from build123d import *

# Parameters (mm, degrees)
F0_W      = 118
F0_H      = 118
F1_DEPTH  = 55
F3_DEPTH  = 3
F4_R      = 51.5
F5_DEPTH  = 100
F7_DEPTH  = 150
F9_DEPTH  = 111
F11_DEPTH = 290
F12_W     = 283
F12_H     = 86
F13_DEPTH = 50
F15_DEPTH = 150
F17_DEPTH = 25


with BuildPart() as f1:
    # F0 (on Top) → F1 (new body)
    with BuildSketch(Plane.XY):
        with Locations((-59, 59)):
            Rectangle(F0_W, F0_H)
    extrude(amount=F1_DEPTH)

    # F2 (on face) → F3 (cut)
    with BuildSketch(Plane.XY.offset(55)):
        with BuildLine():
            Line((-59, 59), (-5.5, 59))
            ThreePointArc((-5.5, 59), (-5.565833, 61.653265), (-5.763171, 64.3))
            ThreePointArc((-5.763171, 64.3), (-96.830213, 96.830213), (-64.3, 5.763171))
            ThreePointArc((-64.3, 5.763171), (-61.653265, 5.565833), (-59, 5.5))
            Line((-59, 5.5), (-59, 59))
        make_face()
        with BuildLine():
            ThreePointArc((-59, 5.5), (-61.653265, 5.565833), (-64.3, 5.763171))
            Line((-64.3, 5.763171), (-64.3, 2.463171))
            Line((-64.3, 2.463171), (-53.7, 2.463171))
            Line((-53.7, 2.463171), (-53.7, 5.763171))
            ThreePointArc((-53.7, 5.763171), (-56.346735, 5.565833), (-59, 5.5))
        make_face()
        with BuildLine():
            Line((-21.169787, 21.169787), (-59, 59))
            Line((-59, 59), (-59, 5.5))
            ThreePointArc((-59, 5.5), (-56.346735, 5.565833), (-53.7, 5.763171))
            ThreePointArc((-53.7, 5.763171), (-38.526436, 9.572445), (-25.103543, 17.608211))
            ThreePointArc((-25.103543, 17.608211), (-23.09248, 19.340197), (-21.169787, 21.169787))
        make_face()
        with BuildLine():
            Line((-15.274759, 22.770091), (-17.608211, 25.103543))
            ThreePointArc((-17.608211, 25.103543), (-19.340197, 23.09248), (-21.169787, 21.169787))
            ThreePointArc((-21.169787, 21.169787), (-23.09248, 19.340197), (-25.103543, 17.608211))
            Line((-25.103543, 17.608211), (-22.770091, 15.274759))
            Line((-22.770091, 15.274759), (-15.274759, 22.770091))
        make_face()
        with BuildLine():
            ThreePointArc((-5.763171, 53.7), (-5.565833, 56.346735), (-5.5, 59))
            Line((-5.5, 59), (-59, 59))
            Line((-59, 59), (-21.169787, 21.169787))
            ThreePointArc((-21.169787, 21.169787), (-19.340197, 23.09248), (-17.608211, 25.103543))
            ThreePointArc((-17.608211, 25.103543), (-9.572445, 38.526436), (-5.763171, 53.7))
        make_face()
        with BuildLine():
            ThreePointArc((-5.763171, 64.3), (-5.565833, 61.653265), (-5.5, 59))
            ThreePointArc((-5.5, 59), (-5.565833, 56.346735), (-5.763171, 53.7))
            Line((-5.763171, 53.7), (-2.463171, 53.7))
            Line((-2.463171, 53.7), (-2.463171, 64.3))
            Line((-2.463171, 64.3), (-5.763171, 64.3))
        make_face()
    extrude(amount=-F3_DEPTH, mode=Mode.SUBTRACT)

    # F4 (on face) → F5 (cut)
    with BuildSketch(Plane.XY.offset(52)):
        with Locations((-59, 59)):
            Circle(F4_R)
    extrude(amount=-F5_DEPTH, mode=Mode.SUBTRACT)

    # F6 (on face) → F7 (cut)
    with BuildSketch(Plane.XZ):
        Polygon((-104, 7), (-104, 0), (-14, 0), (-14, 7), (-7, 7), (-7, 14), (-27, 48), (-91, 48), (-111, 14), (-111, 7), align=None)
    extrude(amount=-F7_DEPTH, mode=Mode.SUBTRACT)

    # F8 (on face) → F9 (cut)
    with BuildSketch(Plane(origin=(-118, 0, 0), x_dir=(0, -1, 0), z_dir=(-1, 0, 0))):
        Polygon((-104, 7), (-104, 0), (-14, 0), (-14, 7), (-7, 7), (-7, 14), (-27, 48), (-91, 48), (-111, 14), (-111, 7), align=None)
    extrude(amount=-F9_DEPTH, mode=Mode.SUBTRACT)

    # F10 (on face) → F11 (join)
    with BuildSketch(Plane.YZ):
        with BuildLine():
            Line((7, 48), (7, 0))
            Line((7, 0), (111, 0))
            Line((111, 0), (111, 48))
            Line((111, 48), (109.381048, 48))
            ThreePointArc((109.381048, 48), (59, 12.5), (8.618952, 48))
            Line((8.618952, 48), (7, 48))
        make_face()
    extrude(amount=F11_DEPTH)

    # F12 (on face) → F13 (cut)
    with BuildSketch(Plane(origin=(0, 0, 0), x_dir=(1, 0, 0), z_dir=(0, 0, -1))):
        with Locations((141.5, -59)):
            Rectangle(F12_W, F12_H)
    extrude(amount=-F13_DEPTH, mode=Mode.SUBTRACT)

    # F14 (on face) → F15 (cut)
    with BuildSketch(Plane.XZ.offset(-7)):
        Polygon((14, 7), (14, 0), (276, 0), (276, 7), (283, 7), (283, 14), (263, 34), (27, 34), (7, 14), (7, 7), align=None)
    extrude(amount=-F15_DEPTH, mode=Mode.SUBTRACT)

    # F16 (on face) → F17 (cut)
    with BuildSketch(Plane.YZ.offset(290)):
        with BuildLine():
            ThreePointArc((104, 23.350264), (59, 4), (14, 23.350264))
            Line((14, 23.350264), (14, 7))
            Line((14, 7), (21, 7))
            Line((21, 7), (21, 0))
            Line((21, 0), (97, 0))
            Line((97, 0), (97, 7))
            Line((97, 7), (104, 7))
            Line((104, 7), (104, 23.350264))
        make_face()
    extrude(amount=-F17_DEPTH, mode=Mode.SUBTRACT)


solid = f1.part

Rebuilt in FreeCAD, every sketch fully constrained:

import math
import FreeCAD as App
import Part
import Sketcher
Q = App.Units.Quantity

doc = App.newDocument("Part")
body = doc.addObject("PartDesign::Body", "Body")

sketch1 = body.newObject("Sketcher::SketchObject", "Sketch")
sketch1.AttachmentSupport = (doc.getObject("XY_Plane"), [""])
sketch1.MapMode = "FlatFace"
sketch1.addGeometry([
    Part.LineSegment(App.Vector(-118, 118, 0), App.Vector(-118, 0, 0)),
    Part.LineSegment(App.Vector(-118, 0, 0), App.Vector(0, 0, 0)),
    Part.LineSegment(App.Vector(0, 0, 0), App.Vector(0, 118, 0)),
    Part.LineSegment(App.Vector(0, 118, 0), App.Vector(-118, 118, 0)),
], False)
sketch1.addConstraint([
    Sketcher.Constraint("Coincident", 0, 2, 1, 1),
    Sketcher.Constraint("Coincident", 1, 2, 2, 1),
    Sketcher.Constraint("Coincident", 2, 2, 3, 1),
    Sketcher.Constraint("Coincident", 3, 2, 0, 1),
    Sketcher.Constraint("Vertical", 0),
    Sketcher.Constraint("Horizontal", 1),
    Sketcher.Constraint("Vertical", 2),
    Sketcher.Constraint("Horizontal", 3),
    Sketcher.Constraint("Coincident", 1, 2, -1, 1),
    Sketcher.Constraint("Equal", 3, 0),
    Sketcher.Constraint("DistanceX", 1, 1, 1, 2, Q("118 mm")),
])
pad1 = body.newObject("PartDesign::Pad", "Pad")
pad1.Profile = sketch1
pad1.Length = 55

sketch2 = body.newObject("Sketcher::SketchObject", "Sketch001")
sketch2.AttachmentSupport = (doc.getObject("XY_Plane"), [""])
sketch2.MapMode = "FlatFace"
sketch2.AttachmentOffset = App.Placement(App.Vector(0, 0, 55), App.Rotation())
sketch2.addGeometry([
    Part.ArcOfCircle(Part.Circle(App.Vector(-59, 59, 0), App.Vector(0, 0, 1), 53.5), math.radians(5.685355), math.radians(264.314645)),
    Part.LineSegment(App.Vector(-64.3, 5.763171, 0), App.Vector(-64.3, 2.463171, 0)),
    Part.LineSegment(App.Vector(-64.3, 2.463171, 0), App.Vector(-53.7, 2.463171, 0)),
    Part.LineSegment(App.Vector(-53.7, 2.463171, 0), App.Vector(-53.7, 5.763171, 0)),
    Part.ArcOfCircle(Part.Circle(App.Vector(-58.999996, 58.999992, 0), App.Vector(0, 0, 1), 53.499992), math.radians(-84.314647), math.radians(-50.685354)),
    Part.LineSegment(App.Vector(-25.103543, 17.608211, 0), App.Vector(-22.770091, 15.274759, 0)),
    Part.LineSegment(App.Vector(-22.770091, 15.274759, 0), App.Vector(-15.274759, 22.770091, 0)),
    Part.LineSegment(App.Vector(-15.274759, 22.770091, 0), App.Vector(-17.608211, 25.103543, 0)),
    Part.ArcOfCircle(Part.Circle(App.Vector(-58.999992, 58.999996, 0), App.Vector(0, 0, 1), 53.499992), math.radians(-39.314646), math.radians(-5.685353)),
    Part.LineSegment(App.Vector(-5.763171, 53.7, 0), App.Vector(-2.463171, 53.7, 0)),
    Part.LineSegment(App.Vector(-2.463171, 53.7, 0), App.Vector(-2.463171, 64.3, 0)),
    Part.LineSegment(App.Vector(-2.463171, 64.3, 0), App.Vector(-5.763171, 64.3, 0)),
], False)
sketch2.addConstraint([
    Sketcher.Constraint("Coincident", 0, 2, 1, 1),
    Sketcher.Constraint("Coincident", 1, 2, 2, 1),
    Sketcher.Constraint("Coincident", 2, 2, 3, 1),
    Sketcher.Constraint("Coincident", 3, 2, 4, 1),
    Sketcher.Constraint("Coincident", 4, 2, 5, 1),
    Sketcher.Constraint("Coincident", 5, 2, 6, 1),
    Sketcher.Constraint("Coincident", 6, 2, 7, 1),
    Sketcher.Constraint("Coincident", 7, 2, 8, 1),
    Sketcher.Constraint("Coincident", 8, 2, 9, 1),
    Sketcher.Constraint("Coincident", 9, 2, 10, 1),
    Sketcher.Constraint("Coincident", 10, 2, 11, 1),
    Sketcher.Constraint("Coincident", 11, 2, 0, 1),
    Sketcher.Constraint("Vertical", 1),
    Sketcher.Constraint("Horizontal", 2),
    Sketcher.Constraint("Vertical", 3),
    Sketcher.Constraint("Horizontal", 9),
    Sketcher.Constraint("Vertical", 10),
    Sketcher.Constraint("Horizontal", 11),
    Sketcher.Constraint("Coincident", 4, 3, 0, 3),
    Sketcher.Constraint("Coincident", 8, 3, 0, 3),
    Sketcher.Constraint("Equal", 4, 8),
    Sketcher.Constraint("Perpendicular", 5, 6),
    Sketcher.Constraint("Perpendicular", 6, 7),
    Sketcher.Constraint("Horizontal", 0, 2, 3, 2),
    Sketcher.Constraint("Vertical", 8, 2, 11, 2),
    Sketcher.Constraint("Equal", 11, 1),
    Sketcher.Constraint("Equal", 2, 10),
    Sketcher.Constraint("Equal", 5, 7),
    Sketcher.Constraint("Radius", 0, Q("53.5 mm")),
    Sketcher.Constraint("Angle", 5, Q("-45 deg")),
    Sketcher.Constraint("DistanceX", 2, 1, 2, 2, Q("10.6 mm")),
    Sketcher.Constraint("DistanceX", 9, 1, 9, 2, Q("3.3 mm")),
    Sketcher.Constraint("DistanceX", 0, 3, -1, 1, Q("59 mm")),
    Sketcher.Constraint("DistanceY", -1, 1, 0, 3, Q("59 mm")),
    Sketcher.Constraint("Distance", 5, Q("3.299999 mm")),
    Sketcher.Constraint("Distance", 6, Q("10.6 mm")),
    Sketcher.Constraint("DistanceX", 0, 2, -1, 1, Q("64.3 mm")),
])
pocket1 = body.newObject("PartDesign::Pocket", "Pocket")
pocket1.Profile = sketch2
pocket1.Length = 3

sketch3 = body.newObject("Sketcher::SketchObject", "Sketch002")
sketch3.AttachmentSupport = (doc.getObject("XY_Plane"), [""])
sketch3.MapMode = "FlatFace"
sketch3.AttachmentOffset = App.Placement(App.Vector(0, 0, 52), App.Rotation())
sketch3.addGeometry(Part.Circle(App.Vector(-59, 59, 0), App.Vector(0, 0, 1), 51.5), False)
sketch3.addConstraint([
    Sketcher.Constraint("Diameter", 0, Q("103 mm")),
    Sketcher.Constraint("DistanceX", 0, 3, -1, 1, Q("59 mm")),
    Sketcher.Constraint("DistanceY", -1, 1, 0, 3, Q("59 mm")),
])
pocket2 = body.newObject("PartDesign::Pocket", "Pocket001")
pocket2.Profile = sketch3
pocket2.Length = 100

sketch4 = body.newObject("Sketcher::SketchObject", "Sketch003")
sketch4.AttachmentSupport = (doc.getObject("XZ_Plane"), [""])
sketch4.MapMode = "FlatFace"
sketch4.addGeometry([
    Part.LineSegment(App.Vector(-104, 7, 0), App.Vector(-104, 0, 0)),
    Part.LineSegment(App.Vector(-104, 0, 0), App.Vector(-14, 0, 0)),
    Part.LineSegment(App.Vector(-14, 0, 0), App.Vector(-14, 7, 0)),
    Part.LineSegment(App.Vector(-14, 7, 0), App.Vector(-7, 7, 0)),
    Part.LineSegment(App.Vector(-7, 7, 0), App.Vector(-7, 14, 0)),
    Part.LineSegment(App.Vector(-7, 14, 0), App.Vector(-27, 48, 0)),
    Part.LineSegment(App.Vector(-27, 48, 0), App.Vector(-91, 48, 0)),
    Part.LineSegment(App.Vector(-91, 48, 0), App.Vector(-111, 14, 0)),
    Part.LineSegment(App.Vector(-111, 14, 0), App.Vector(-111, 7, 0)),
    Part.LineSegment(App.Vector(-111, 7, 0), App.Vector(-104, 7, 0)),
], False)
sketch4.addConstraint([
    Sketcher.Constraint("Coincident", 0, 2, 1, 1),
    Sketcher.Constraint("Coincident", 1, 2, 2, 1),
    Sketcher.Constraint("Coincident", 2, 2, 3, 1),
    Sketcher.Constraint("Coincident", 3, 2, 4, 1),
    Sketcher.Constraint("Coincident", 4, 2, 5, 1),
    Sketcher.Constraint("Coincident", 5, 2, 6, 1),
    Sketcher.Constraint("Coincident", 6, 2, 7, 1),
    Sketcher.Constraint("Coincident", 7, 2, 8, 1),
    Sketcher.Constraint("Coincident", 8, 2, 9, 1),
    Sketcher.Constraint("Coincident", 9, 2, 0, 1),
    Sketcher.Constraint("Vertical", 0),
    Sketcher.Constraint("Horizontal", 1),
    Sketcher.Constraint("Vertical", 2),
    Sketcher.Constraint("Horizontal", 3),
    Sketcher.Constraint("Vertical", 4),
    Sketcher.Constraint("Horizontal", 6),
    Sketcher.Constraint("Vertical", 8),
    Sketcher.Constraint("Horizontal", 9),
    Sketcher.Constraint("PointOnObject", 0, 2, -1),
    Sketcher.Constraint("Horizontal", 4, 2, 7, 2),
    Sketcher.Constraint("Horizontal", 3, 2, 8, 2),
    Sketcher.Constraint("Equal", 3, 9),
    Sketcher.Constraint("Equal", 9, 0),
    Sketcher.Constraint("Equal", 2, 4),
    Sketcher.Constraint("Equal", 5, 7),
    Sketcher.Constraint("DistanceX", 1, 1, 1, 2, Q("90 mm")),
    Sketcher.Constraint("DistanceX", 3, 1, 3, 2, Q("7 mm")),
    Sketcher.Constraint("DistanceX", 6, 2, 6, 1, Q("64 mm")),
    Sketcher.Constraint("DistanceX", 0, 2, -1, 1, Q("104 mm")),
    Sketcher.Constraint("DistanceY", -1, 1, 5, 2, Q("48 mm")),
])
pocket3 = body.newObject("PartDesign::Pocket", "Pocket002")
pocket3.Profile = sketch4
pocket3.Length = 150

sketch5 = body.newObject("Sketcher::SketchObject", "Sketch004")
sketch5.AttachmentSupport = (doc.getObject("YZ_Plane"), [""])
sketch5.MapMode = "FlatFace"
sketch5.AttachmentOffset = App.Placement(App.Vector(0, 0, -118), App.Rotation())
sketch5.addGeometry([
    Part.LineSegment(App.Vector(104, 7, 0), App.Vector(104, 0, 0)),
    Part.LineSegment(App.Vector(104, 0, 0), App.Vector(14, 0, 0)),
    Part.LineSegment(App.Vector(14, 0, 0), App.Vector(14, 7, 0)),
    Part.LineSegment(App.Vector(14, 7, 0), App.Vector(7, 7, 0)),
    Part.LineSegment(App.Vector(7, 7, 0), App.Vector(7, 14, 0)),
    Part.LineSegment(App.Vector(7, 14, 0), App.Vector(27, 48, 0)),
    Part.LineSegment(App.Vector(27, 48, 0), App.Vector(91, 48, 0)),
    Part.LineSegment(App.Vector(91, 48, 0), App.Vector(111, 14, 0)),
    Part.LineSegment(App.Vector(111, 14, 0), App.Vector(111, 7, 0)),
    Part.LineSegment(App.Vector(111, 7, 0), App.Vector(104, 7, 0)),
], False)
sketch5.addConstraint([
    Sketcher.Constraint("Coincident", 0, 2, 1, 1),
    Sketcher.Constraint("Coincident", 1, 2, 2, 1),
    Sketcher.Constraint("Coincident", 2, 2, 3, 1),
    Sketcher.Constraint("Coincident", 3, 2, 4, 1),
    Sketcher.Constraint("Coincident", 4, 2, 5, 1),
    Sketcher.Constraint("Coincident", 5, 2, 6, 1),
    Sketcher.Constraint("Coincident", 6, 2, 7, 1),
    Sketcher.Constraint("Coincident", 7, 2, 8, 1),
    Sketcher.Constraint("Coincident", 8, 2, 9, 1),
    Sketcher.Constraint("Coincident", 9, 2, 0, 1),
    Sketcher.Constraint("Vertical", 0),
    Sketcher.Constraint("Horizontal", 1),
    Sketcher.Constraint("Vertical", 2),
    Sketcher.Constraint("Horizontal", 3),
    Sketcher.Constraint("Vertical", 4),
    Sketcher.Constraint("Horizontal", 6),
    Sketcher.Constraint("Vertical", 8),
    Sketcher.Constraint("Horizontal", 9),
    Sketcher.Constraint("PointOnObject", 0, 2, -1),
    Sketcher.Constraint("Horizontal", 4, 2, 7, 2),
    Sketcher.Constraint("Horizontal", 3, 2, 8, 2),
    Sketcher.Constraint("Equal", 3, 9),
    Sketcher.Constraint("Equal", 9, 0),
    Sketcher.Constraint("Equal", 2, 4),
    Sketcher.Constraint("Equal", 5, 7),
    Sketcher.Constraint("DistanceX", 1, 2, 1, 1, Q("90 mm")),
    Sketcher.Constraint("DistanceX", 3, 2, 3, 1, Q("7 mm")),
    Sketcher.Constraint("DistanceX", 6, 1, 6, 2, Q("64 mm")),
    Sketcher.Constraint("DistanceX", -1, 1, 0, 2, Q("104 mm")),
    Sketcher.Constraint("DistanceY", -1, 1, 5, 2, Q("48 mm")),
])
pocket4 = body.newObject("PartDesign::Pocket", "Pocket003")
pocket4.Profile = sketch5
pocket4.Length = 111
pocket4.Reversed = True

sketch6 = body.newObject("Sketcher::SketchObject", "Sketch005")
sketch6.AttachmentSupport = (doc.getObject("YZ_Plane"), [""])
sketch6.MapMode = "FlatFace"
sketch6.addGeometry([
    Part.LineSegment(App.Vector(7, 48, 0), App.Vector(7, 0, 0)),
    Part.LineSegment(App.Vector(7, 0, 0), App.Vector(111, 0, 0)),
    Part.LineSegment(App.Vector(111, 0, 0), App.Vector(111, 48, 0)),
    Part.LineSegment(App.Vector(111, 48, 0), App.Vector(109.381048, 48, 0)),
    Part.ArcOfCircle(Part.Circle(App.Vector(59, 66, 0), App.Vector(0, 0, 1), 53.5), math.radians(-160.339349), math.radians(-19.660651)),
    Part.LineSegment(App.Vector(8.618952, 48, 0), App.Vector(7, 48, 0)),
], False)
sketch6.addConstraint([
    Sketcher.Constraint("Coincident", 0, 2, 1, 1),
    Sketcher.Constraint("Coincident", 1, 2, 2, 1),
    Sketcher.Constraint("Coincident", 2, 2, 3, 1),
    Sketcher.Constraint("Coincident", 3, 2, 4, 2),
    Sketcher.Constraint("Coincident", 4, 1, 5, 1),
    Sketcher.Constraint("Coincident", 5, 2, 0, 1),
    Sketcher.Constraint("Vertical", 0),
    Sketcher.Constraint("Horizontal", 1),
    Sketcher.Constraint("Vertical", 2),
    Sketcher.Constraint("Horizontal", 3),
    Sketcher.Constraint("Horizontal", 5),
    Sketcher.Constraint("PointOnObject", 0, 2, -1),
    Sketcher.Constraint("Horizontal", 3, 2, 4, 1),
    Sketcher.Constraint("Equal", 3, 5),
    Sketcher.Constraint("Radius", 4, Q("53.5 mm")),
    Sketcher.Constraint("DistanceX", 1, 1, 1, 2, Q("104 mm")),
    Sketcher.Constraint("DistanceY", 0, 2, 0, 1, Q("48 mm")),
    Sketcher.Constraint("DistanceX", -1, 1, 4, 3, Q("59 mm")),
    Sketcher.Constraint("DistanceY", -1, 1, 4, 3, Q("66 mm")),
])
pad2 = body.newObject("PartDesign::Pad", "Pad001")
pad2.Profile = sketch6
pad2.Length = 290

sketch7 = body.newObject("Sketcher::SketchObject", "Sketch006")
sketch7.AttachmentSupport = (doc.getObject("XY_Plane"), [""])
sketch7.MapMode = "FlatFace"
sketch7.addGeometry([
    Part.LineSegment(App.Vector(0, 16, 0), App.Vector(0, 102, 0)),
    Part.LineSegment(App.Vector(0, 102, 0), App.Vector(283, 102, 0)),
    Part.LineSegment(App.Vector(283, 102, 0), App.Vector(283, 16, 0)),
    Part.LineSegment(App.Vector(283, 16, 0), App.Vector(0, 16, 0)),
], False)
sketch7.addConstraint([
    Sketcher.Constraint("Coincident", 0, 2, 1, 1),
    Sketcher.Constraint("Coincident", 1, 2, 2, 1),
    Sketcher.Constraint("Coincident", 2, 2, 3, 1),
    Sketcher.Constraint("Coincident", 3, 2, 0, 1),
    Sketcher.Constraint("Vertical", 0),
    Sketcher.Constraint("Horizontal", 1),
    Sketcher.Constraint("Vertical", 2),
    Sketcher.Constraint("Horizontal", 3),
    Sketcher.Constraint("PointOnObject", 0, 2, -2),
    Sketcher.Constraint("DistanceX", 1, 1, 1, 2, Q("283 mm")),
    Sketcher.Constraint("DistanceY", 0, 1, 0, 2, Q("86 mm")),
    Sketcher.Constraint("DistanceY", -1, 1, 0, 2, Q("102 mm")),
])
pocket5 = body.newObject("PartDesign::Pocket", "Pocket004")
pocket5.Profile = sketch7
pocket5.Length = 50
pocket5.Reversed = True

sketch8 = body.newObject("Sketcher::SketchObject", "Sketch007")
sketch8.AttachmentSupport = (doc.getObject("XZ_Plane"), [""])
sketch8.MapMode = "FlatFace"
sketch8.AttachmentOffset = App.Placement(App.Vector(0, 0, -7), App.Rotation())
sketch8.addGeometry([
    Part.LineSegment(App.Vector(14, 7, 0), App.Vector(14, 0, 0)),
    Part.LineSegment(App.Vector(14, 0, 0), App.Vector(276, 0, 0)),
    Part.LineSegment(App.Vector(276, 0, 0), App.Vector(276, 7, 0)),
    Part.LineSegment(App.Vector(276, 7, 0), App.Vector(283, 7, 0)),
    Part.LineSegment(App.Vector(283, 7, 0), App.Vector(283, 14, 0)),
    Part.LineSegment(App.Vector(283, 14, 0), App.Vector(263, 34, 0)),
    Part.LineSegment(App.Vector(263, 34, 0), App.Vector(27, 34, 0)),
    Part.LineSegment(App.Vector(27, 34, 0), App.Vector(7, 14, 0)),
    Part.LineSegment(App.Vector(7, 14, 0), App.Vector(7, 7, 0)),
    Part.LineSegment(App.Vector(7, 7, 0), App.Vector(14, 7, 0)),
], False)
sketch8.addConstraint([
    Sketcher.Constraint("Coincident", 0, 2, 1, 1),
    Sketcher.Constraint("Coincident", 1, 2, 2, 1),
    Sketcher.Constraint("Coincident", 2, 2, 3, 1),
    Sketcher.Constraint("Coincident", 3, 2, 4, 1),
    Sketcher.Constraint("Coincident", 4, 2, 5, 1),
    Sketcher.Constraint("Coincident", 5, 2, 6, 1),
    Sketcher.Constraint("Coincident", 6, 2, 7, 1),
    Sketcher.Constraint("Coincident", 7, 2, 8, 1),
    Sketcher.Constraint("Coincident", 8, 2, 9, 1),
    Sketcher.Constraint("Coincident", 9, 2, 0, 1),
    Sketcher.Constraint("Vertical", 0),
    Sketcher.Constraint("Horizontal", 1),
    Sketcher.Constraint("Vertical", 2),
    Sketcher.Constraint("Horizontal", 3),
    Sketcher.Constraint("Vertical", 4),
    Sketcher.Constraint("Horizontal", 6),
    Sketcher.Constraint("Vertical", 8),
    Sketcher.Constraint("Horizontal", 9),
    Sketcher.Constraint("PointOnObject", 0, 2, -1),
    Sketcher.Constraint("Perpendicular", 5, 7),
    Sketcher.Constraint("Horizontal", 4, 2, 7, 2),
    Sketcher.Constraint("Horizontal", 3, 2, 8, 2),
    Sketcher.Constraint("Equal", 3, 9),
    Sketcher.Constraint("Equal", 9, 0),
    Sketcher.Constraint("Equal", 2, 4),
    Sketcher.Constraint("Equal", 5, 7),
    Sketcher.Constraint("DistanceX", 1, 1, 1, 2, Q("262 mm")),
    Sketcher.Constraint("DistanceX", 3, 1, 3, 2, Q("7 mm")),
    Sketcher.Constraint("DistanceX", 6, 2, 6, 1, Q("236 mm")),
    Sketcher.Constraint("DistanceX", -1, 1, 0, 2, Q("14 mm")),
])
pocket6 = body.newObject("PartDesign::Pocket", "Pocket005")
pocket6.Profile = sketch8
pocket6.Length = 150

sketch9 = body.newObject("Sketcher::SketchObject", "Sketch008")
sketch9.AttachmentSupport = (doc.getObject("YZ_Plane"), [""])
sketch9.MapMode = "FlatFace"
sketch9.AttachmentOffset = App.Placement(App.Vector(0, 0, 290), App.Rotation())
sketch9.addGeometry([
    Part.ArcOfCircle(Part.Circle(App.Vector(59, 66, 0), App.Vector(0, 0, 1), 62), math.radians(-136.535977), math.radians(-43.464023)),
    Part.LineSegment(App.Vector(14, 23.350264, 0), App.Vector(14, 7, 0)),
    Part.LineSegment(App.Vector(14, 7, 0), App.Vector(21, 7, 0)),
    Part.LineSegment(App.Vector(21, 7, 0), App.Vector(21, 0, 0)),
    Part.LineSegment(App.Vector(21, 0, 0), App.Vector(97, 0, 0)),
    Part.LineSegment(App.Vector(97, 0, 0), App.Vector(97, 7, 0)),
    Part.LineSegment(App.Vector(97, 7, 0), App.Vector(104, 7, 0)),
    Part.LineSegment(App.Vector(104, 7, 0), App.Vector(104, 23.350264, 0)),
], False)
sketch9.addConstraint([
    Sketcher.Constraint("Coincident", 0, 1, 1, 1),
    Sketcher.Constraint("Coincident", 1, 2, 2, 1),
    Sketcher.Constraint("Coincident", 2, 2, 3, 1),
    Sketcher.Constraint("Coincident", 3, 2, 4, 1),
    Sketcher.Constraint("Coincident", 4, 2, 5, 1),
    Sketcher.Constraint("Coincident", 5, 2, 6, 1),
    Sketcher.Constraint("Coincident", 6, 2, 7, 1),
    Sketcher.Constraint("Coincident", 7, 2, 0, 2),
    Sketcher.Constraint("Vertical", 1),
    Sketcher.Constraint("Horizontal", 2),
    Sketcher.Constraint("Vertical", 3),
    Sketcher.Constraint("Horizontal", 4),
    Sketcher.Constraint("Vertical", 5),
    Sketcher.Constraint("Horizontal", 6),
    Sketcher.Constraint("Vertical", 7),
    Sketcher.Constraint("PointOnObject", 3, 2, -1),
    Sketcher.Constraint("Horizontal", 2, 2, 5, 2),
    Sketcher.Constraint("Horizontal", 0, 1, 7, 2),
    Sketcher.Constraint("Equal", 2, 6),
    Sketcher.Constraint("Equal", 6, 3),
    Sketcher.Constraint("Radius", 0, Q("62 mm")),
    Sketcher.Constraint("DistanceX", 2, 1, 2, 2, Q("7 mm")),
    Sketcher.Constraint("DistanceX", 4, 1, 4, 2, Q("76 mm")),
    Sketcher.Constraint("DistanceX", -1, 1, 0, 3, Q("59 mm")),
    Sketcher.Constraint("DistanceY", -1, 1, 0, 3, Q("66 mm")),
])
pocket7 = body.newObject("PartDesign::Pocket", "Pocket006")
pocket7.Profile = sketch9
pocket7.Length = 25

doc.recompute()
